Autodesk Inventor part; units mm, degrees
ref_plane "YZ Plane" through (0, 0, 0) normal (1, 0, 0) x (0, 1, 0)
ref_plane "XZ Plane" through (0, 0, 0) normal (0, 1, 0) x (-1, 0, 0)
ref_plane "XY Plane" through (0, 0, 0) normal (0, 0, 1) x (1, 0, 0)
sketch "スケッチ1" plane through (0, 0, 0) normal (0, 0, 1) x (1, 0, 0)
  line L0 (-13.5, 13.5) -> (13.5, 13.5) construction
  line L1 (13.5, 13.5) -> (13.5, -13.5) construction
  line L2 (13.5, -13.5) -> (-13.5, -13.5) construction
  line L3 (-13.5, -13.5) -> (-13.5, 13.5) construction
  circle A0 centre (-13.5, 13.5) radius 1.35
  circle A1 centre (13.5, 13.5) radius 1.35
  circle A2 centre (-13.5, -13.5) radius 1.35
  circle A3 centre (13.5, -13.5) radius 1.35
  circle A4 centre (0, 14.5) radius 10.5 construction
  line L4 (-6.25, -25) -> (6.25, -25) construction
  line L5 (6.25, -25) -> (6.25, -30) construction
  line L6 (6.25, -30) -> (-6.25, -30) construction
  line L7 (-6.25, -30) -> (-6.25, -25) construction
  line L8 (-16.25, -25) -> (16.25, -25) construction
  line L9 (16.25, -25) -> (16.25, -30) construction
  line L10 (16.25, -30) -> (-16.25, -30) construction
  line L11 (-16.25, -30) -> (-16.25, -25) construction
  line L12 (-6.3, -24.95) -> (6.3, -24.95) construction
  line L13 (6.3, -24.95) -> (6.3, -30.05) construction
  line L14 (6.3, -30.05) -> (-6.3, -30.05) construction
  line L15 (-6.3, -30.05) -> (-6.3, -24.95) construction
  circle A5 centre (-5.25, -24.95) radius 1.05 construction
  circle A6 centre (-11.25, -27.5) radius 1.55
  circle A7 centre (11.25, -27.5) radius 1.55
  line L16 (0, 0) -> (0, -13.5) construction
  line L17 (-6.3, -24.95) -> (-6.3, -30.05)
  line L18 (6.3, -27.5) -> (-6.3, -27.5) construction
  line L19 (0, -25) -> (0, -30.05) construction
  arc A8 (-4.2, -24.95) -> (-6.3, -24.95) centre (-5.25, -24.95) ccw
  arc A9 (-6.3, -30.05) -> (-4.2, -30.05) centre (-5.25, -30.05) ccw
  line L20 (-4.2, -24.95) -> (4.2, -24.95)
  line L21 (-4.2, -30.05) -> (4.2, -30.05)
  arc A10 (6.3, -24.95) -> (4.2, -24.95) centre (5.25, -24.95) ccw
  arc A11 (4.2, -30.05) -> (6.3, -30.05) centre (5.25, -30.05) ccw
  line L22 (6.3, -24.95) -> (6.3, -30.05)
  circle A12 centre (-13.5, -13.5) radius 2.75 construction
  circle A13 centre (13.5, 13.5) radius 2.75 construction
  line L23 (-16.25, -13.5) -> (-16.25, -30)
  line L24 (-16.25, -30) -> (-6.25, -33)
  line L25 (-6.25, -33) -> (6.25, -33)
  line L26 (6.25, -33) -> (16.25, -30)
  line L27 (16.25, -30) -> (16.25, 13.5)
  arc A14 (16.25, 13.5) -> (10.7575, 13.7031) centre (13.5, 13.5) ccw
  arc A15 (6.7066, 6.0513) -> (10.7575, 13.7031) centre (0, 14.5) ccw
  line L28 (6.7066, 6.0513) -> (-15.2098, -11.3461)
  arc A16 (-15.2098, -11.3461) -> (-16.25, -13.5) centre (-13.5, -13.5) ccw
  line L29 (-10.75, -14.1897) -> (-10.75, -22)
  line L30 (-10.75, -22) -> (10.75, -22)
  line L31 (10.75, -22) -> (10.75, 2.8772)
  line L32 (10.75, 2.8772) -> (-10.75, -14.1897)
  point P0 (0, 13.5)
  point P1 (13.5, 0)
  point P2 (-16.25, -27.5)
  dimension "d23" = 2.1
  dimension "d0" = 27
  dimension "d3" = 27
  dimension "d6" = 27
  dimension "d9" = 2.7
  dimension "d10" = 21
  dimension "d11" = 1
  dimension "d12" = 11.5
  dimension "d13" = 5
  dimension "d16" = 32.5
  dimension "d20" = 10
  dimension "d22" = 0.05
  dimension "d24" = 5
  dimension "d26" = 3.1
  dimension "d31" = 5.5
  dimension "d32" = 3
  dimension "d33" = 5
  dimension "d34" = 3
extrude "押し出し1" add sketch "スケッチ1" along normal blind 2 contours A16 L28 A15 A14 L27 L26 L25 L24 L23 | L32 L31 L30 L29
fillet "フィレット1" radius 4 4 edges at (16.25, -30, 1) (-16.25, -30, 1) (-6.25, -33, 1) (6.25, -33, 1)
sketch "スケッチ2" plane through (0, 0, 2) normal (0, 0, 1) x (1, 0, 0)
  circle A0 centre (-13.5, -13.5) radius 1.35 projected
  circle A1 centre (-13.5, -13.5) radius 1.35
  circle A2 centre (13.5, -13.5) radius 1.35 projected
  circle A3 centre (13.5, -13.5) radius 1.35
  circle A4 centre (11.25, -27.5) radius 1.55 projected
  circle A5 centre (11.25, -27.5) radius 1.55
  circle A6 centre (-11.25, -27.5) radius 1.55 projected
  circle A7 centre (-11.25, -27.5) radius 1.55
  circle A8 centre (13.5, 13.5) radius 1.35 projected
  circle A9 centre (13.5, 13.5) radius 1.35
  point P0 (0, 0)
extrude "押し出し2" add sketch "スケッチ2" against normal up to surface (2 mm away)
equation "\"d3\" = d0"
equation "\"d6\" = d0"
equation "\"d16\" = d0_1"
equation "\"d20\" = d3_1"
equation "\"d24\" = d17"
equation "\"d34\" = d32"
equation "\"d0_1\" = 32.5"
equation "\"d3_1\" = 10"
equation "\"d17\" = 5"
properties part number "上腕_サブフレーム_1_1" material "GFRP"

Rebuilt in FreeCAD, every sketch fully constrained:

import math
import FreeCAD as App
import Part
import Sketcher
Q = App.Units.Quantity


def edges_at(feature, points):
    """Names of the edges that pass closest to the given points."""
    edges = feature.Shape.Edges
    near = lambda p: min(range(len(edges)), key=lambda i: edges[i].distToShape(Part.Vertex(*p))[0])
    return sorted({f"Edge{near(p) + 1}" for p in points})

doc = App.newDocument("Part")
params = doc.addObject("Spreadsheet::Sheet", "Params")
for row, (alias, value) in enumerate([
    ("sketch1_diameter", "3.1 mm"),
    ("sketch1_diameter2", "2.7 mm"),
    ("sketch1_radius", "2.75 mm"),
    ("sketch1_radius2", "1.05 mm"),
    ("sketch1_height", "16.5 mm"),
    ("pad1_length", "2 mm"),
    ("fillet_radius", "4 mm"),
    ("sketch2_diameter", "2.7 mm"),
    ("sketch2_diameter2", "3.1 mm"),
    ("pad2_length", "2 mm"),
], start=1):
    params.set(f"A{row}", alias)
    params.set(f"B{row}", "=" + value)
    params.setAlias(f"B{row}", alias)

body = doc.addObject("PartDesign::Body", "Body")

# Sketch on XY plane
sketch1 = body.newObject("Sketcher::SketchObject", "Sketch")
sketch1.AttachmentSupport = (doc.getObject("XY_Plane"), [""])
sketch1.MapMode = "FlatFace"
sketch1.addGeometry([
    Part.ArcOfCircle(Part.Circle(App.Vector(-13.5, -13.5, 0), App.Vector(0, 0, 1), 2.8), math.radians(128), math.radians(180)),  # 0
    Part.LineSegment(App.Vector(-16.2, -13.5, 0), App.Vector(-16.2, -30, 0)),  # 1
    Part.LineSegment(App.Vector(-16.2, -30, 0), App.Vector(-6.2, -33, 0)),  # 2
    Part.LineSegment(App.Vector(-6.2, -33, 0), App.Vector(6.2, -33, 0)),  # 3
    Part.LineSegment(App.Vector(6.2, -33, 0), App.Vector(16.2, -30, 0)),  # 4
    Part.LineSegment(App.Vector(16.2, -30, 0), App.Vector(16.2, 13.5, 0)),  # 5
    Part.ArcOfCircle(Part.Circle(App.Vector(13.5, 13.5, 0), App.Vector(0, 0, 1), 2.8), math.radians(0), math.radians(176)),  # 6
    Part.ArcOfCircle(Part.Circle(App.Vector(0, 14.5, 0), App.Vector(0, 0, 1), 10.8), math.radians(-52), math.radians(-4)),  # 7
    Part.LineSegment(App.Vector(6.7, 6.1, 0), App.Vector(-15.2, -11.3, 0)),  # 8
    Part.Circle(App.Vector(-11.2, -27.5, 0), App.Vector(0, 0, 1), 1.6),  # 9
    Part.Circle(App.Vector(-13.5, -13.5, 0), App.Vector(0, 0, 1), 1.4),  # 10
    Part.LineSegment(App.Vector(-6.3, -30.1, 0), App.Vector(-6.3, -24.9, 0)),  # 11
    Part.ArcOfCircle(Part.Circle(App.Vector(-5.2, -24.9, 0), App.Vector(0, 0, 1), 1.1), math.radians(0), math.radians(180)),  # 12
    Part.LineSegment(App.Vector(-4.2, -24.9, 0), App.Vector(4.2, -24.9, 0)),  # 13
    Part.ArcOfCircle(Part.Circle(App.Vector(5.2, -24.9, 0), App.Vector(0, 0, 1), 1), math.radians(0), math.radians(180)),  # 14
    Part.LineSegment(App.Vector(6.3, -24.9, 0), App.Vector(6.3, -30.1, 0)),  # 15
    Part.ArcOfCircle(Part.Circle(App.Vector(5.2, -30.1, 0), App.Vector(0, 0, 1), 1), math.radians(180), math.radians(360)),  # 16
    Part.LineSegment(App.Vector(4.2, -30.1, 0), App.Vector(-4.2, -30.1, 0)),  # 17
    Part.ArcOfCircle(Part.Circle(App.Vector(-5.2, -30.1, 0), App.Vector(0, 0, 1), 1), math.radians(180), math.radians(360)),  # 18
    Part.Circle(App.Vector(11.2, -27.5, 0), App.Vector(0, 0, 1), 1.6),  # 19
    Part.Circle(App.Vector(13.5, -13.5, 0), App.Vector(0, 0, 1), 1.4),  # 20
    Part.Circle(App.Vector(13.5, 13.5, 0), App.Vector(0, 0, 1), 1.4),  # 21
], False)
sketch1.addConstraint([
    Sketcher.Constraint("Tangent", 0, 2, 1, 1),
    Sketcher.Constraint("Coincident", 1, 2, 2, 1),
    Sketcher.Constraint("Coincident", 2, 2, 3, 1),
    Sketcher.Constraint("Coincident", 3, 2, 4, 1),
    Sketcher.Constraint("Coincident", 4, 2, 5, 1),
    Sketcher.Constraint("Tangent", 5, 2, 6, 1),
    Sketcher.Constraint("Tangent", 6, 2, 7, 2),
    Sketcher.Constraint("Tangent", 7, 1, 8, 1),
    Sketcher.Constraint("Tangent", 8, 2, 0, 1),
    Sketcher.Constraint("Tangent", 11, 2, 12, 2),
    Sketcher.Constraint("Coincident", 12, 1, 13, 1),
    Sketcher.Constraint("Coincident", 13, 2, 14, 2),
    Sketcher.Constraint("Tangent", 14, 1, 15, 1),
    Sketcher.Constraint("Tangent", 15, 2, 16, 2),
    Sketcher.Constraint("Coincident", 16, 1, 17, 1),
    Sketcher.Constraint("Coincident", 17, 2, 18, 2),
    Sketcher.Constraint("Tangent", 18, 1, 11, 1),
    Sketcher.Constraint("Vertical", 1),
    Sketcher.Constraint("Horizontal", 3),
    Sketcher.Constraint("Vertical", 5),
    Sketcher.Constraint("Vertical", 11),
    Sketcher.Constraint("Horizontal", 13),
    Sketcher.Constraint("Vertical", 15),
    Sketcher.Constraint("Horizontal", 17),
    Sketcher.Constraint("Coincident", 10, 3, 0, 3),
    Sketcher.Constraint("Coincident", 21, 3, 6, 3),
    Sketcher.Constraint("Equal", 0, 6),
    Sketcher.Constraint("Equal", 12, 14),
    Sketcher.Constraint("Equal", 14, 16),
    Sketcher.Constraint("Equal", 16, 18),
    Sketcher.Constraint("Equal", 9, 19),
    Sketcher.Constraint("Equal", 10, 20),
    Sketcher.Constraint("Equal", 20, 21),
    Sketcher.Constraint("Symmetric", 0, 3, 6, 3, -1, 1),
    Sketcher.Constraint("Symmetric", 12, 3, 14, 3, -2),
    Sketcher.Constraint("Symmetric", 9, 3, 19, 3, -2),
    Sketcher.Constraint("Symmetric", 0, 3, 20, 3, -2),
    Sketcher.Constraint("PointOnObject", 7, 3, -2),
    Sketcher.Constraint("Horizontal", 16, 3, 18, 3),
    Sketcher.Constraint("Horizontal", 1, 2, 4, 2),
    Sketcher.Constraint("Horizontal", 11, 2, 12, 1),
    Sketcher.Constraint("Horizontal", 15, 2, 16, 1),
    Sketcher.Constraint("Equal", 2, 4),
    Sketcher.Constraint("Diameter", 9, Q("3.1 mm")),
    Sketcher.Constraint("Diameter", 10, Q("2.7 mm")),
    Sketcher.Constraint("Radius", 0, Q("2.75 mm")),
    Sketcher.Constraint("Radius", 12, Q("1.05 mm")),
    Sketcher.Constraint("DistanceX", 0, 3, 6, 3, Q("27 mm")),
    Sketcher.Constraint("DistanceY", 0, 3, 6, 3, Q("27 mm")),
    Sketcher.Constraint("DistanceY", 6, 3, 7, 3, Q("1 mm")),
    Sketcher.Constraint("DistanceX", 0, 2, 9, 3, Q("5 mm")),
    Sketcher.Constraint("DistanceX", 2, 2, 18, 3, Q("1 mm")),
    Sketcher.Constraint("DistanceX", 9, 3, 2, 2, Q("5 mm")),
    Sketcher.Constraint("DistanceY", 2, 2, 1, 2, Q("3 mm")),
    Sketcher.Constraint("DistanceY", 2, 2, 9, 3, Q("5.5 mm")),
    Sketcher.Constraint("DistanceY", 18, 3, 1, 2, Q("0.05 mm")),
    Sketcher.Constraint("DistanceY", 1, 2, 1, 1, Q("16.5 mm")),
    Sketcher.Constraint("DistanceY", 11, 1, 11, 2, Q("5.1 mm")),
])
sketch1.setExpression("Constraints[43]", "Params.sketch1_diameter")
sketch1.setExpression("Constraints[44]", "Params.sketch1_diameter2")
sketch1.setExpression("Constraints[45]", "Params.sketch1_radius")
sketch1.setExpression("Constraints[46]", "Params.sketch1_radius2")
sketch1.setExpression("Constraints[56]", "Params.sketch1_height")
pad1 = body.newObject("PartDesign::Pad", "Pad")
pad1.Profile = sketch1
pad1.setExpression("Length", "Params.pad1_length")
doc.recompute()

fillet = body.newObject("PartDesign::Fillet", "Fillet")
fillet.Base = (pad1, edges_at(pad1, [
    (16.25, -30, 1),
    (-16.25, -30, 1),
    (-6.25, -33, 1),
    (6.25, -33, 1),
]))
fillet.setExpression("Radius", "Params.fillet_radius")

# Sketch on XY plane
sketch2 = body.newObject("Sketcher::SketchObject", "Sketch001")
sketch2.AttachmentSupport = (doc.getObject("XY_Plane"), [""])
sketch2.MapMode = "FlatFace"
sketch2.AttachmentOffset = App.Placement(App.Vector(0, 0, 2), App.Rotation())
sketch2.addGeometry([
    Part.Circle(App.Vector(-13.5, -13.5, 0), App.Vector(0, 0, 1), 1.4),  # 0
    Part.Circle(App.Vector(13.5, -13.5, 0), App.Vector(0, 0, 1), 1.4),  # 1
    Part.Circle(App.Vector(11.2, -27.5, 0), App.Vector(0, 0, 1), 1.6),  # 2
    Part.Circle(App.Vector(-11.2, -27.5, 0), App.Vector(0, 0, 1), 1.6),  # 3
    Part.Circle(App.Vector(13.5, 13.5, 0), App.Vector(0, 0, 1), 1.4),  # 4
], False)
sketch2.addConstraint([
    Sketcher.Constraint("Equal", 0, 1),
    Sketcher.Constraint("Equal", 2, 3),
    Sketcher.Constraint("Equal", 1, 4),
    Sketcher.Constraint("Symmetric", 0, 3, 4, 3, -1, 1),
    Sketcher.Constraint("Symmetric", 0, 3, 1, 3, -2),
    Sketcher.Constraint("Symmetric", 2, 3, 3, 3, -2),
    Sketcher.Constraint("Diameter", 0, Q("2.7 mm")),
    Sketcher.Constraint("Diameter", 2, Q("3.1 mm")),
    Sketcher.Constraint("DistanceX", 0, 3, 1, 3, Q("27 mm")),
    Sketcher.Constraint("DistanceY", 2, 3, 1, 3, Q("14 mm")),
    Sketcher.Constraint("DistanceY", 1, 3, 4, 3, Q("27 mm")),
    Sketcher.Constraint("DistanceX", 3, 3, 2, 3, Q("22.5 mm")),
])
sketch2.setExpression("Constraints[6]", "Params.sketch2_diameter")
sketch2.setExpression("Constraints[7]", "Params.sketch2_diameter2")
pad2 = body.newObject("PartDesign::Pad", "Pad001")
pad2.Profile = sketch2
pad2.setExpression("Length", "Params.pad2_length")
pad2.Reversed = True

doc.recompute()
